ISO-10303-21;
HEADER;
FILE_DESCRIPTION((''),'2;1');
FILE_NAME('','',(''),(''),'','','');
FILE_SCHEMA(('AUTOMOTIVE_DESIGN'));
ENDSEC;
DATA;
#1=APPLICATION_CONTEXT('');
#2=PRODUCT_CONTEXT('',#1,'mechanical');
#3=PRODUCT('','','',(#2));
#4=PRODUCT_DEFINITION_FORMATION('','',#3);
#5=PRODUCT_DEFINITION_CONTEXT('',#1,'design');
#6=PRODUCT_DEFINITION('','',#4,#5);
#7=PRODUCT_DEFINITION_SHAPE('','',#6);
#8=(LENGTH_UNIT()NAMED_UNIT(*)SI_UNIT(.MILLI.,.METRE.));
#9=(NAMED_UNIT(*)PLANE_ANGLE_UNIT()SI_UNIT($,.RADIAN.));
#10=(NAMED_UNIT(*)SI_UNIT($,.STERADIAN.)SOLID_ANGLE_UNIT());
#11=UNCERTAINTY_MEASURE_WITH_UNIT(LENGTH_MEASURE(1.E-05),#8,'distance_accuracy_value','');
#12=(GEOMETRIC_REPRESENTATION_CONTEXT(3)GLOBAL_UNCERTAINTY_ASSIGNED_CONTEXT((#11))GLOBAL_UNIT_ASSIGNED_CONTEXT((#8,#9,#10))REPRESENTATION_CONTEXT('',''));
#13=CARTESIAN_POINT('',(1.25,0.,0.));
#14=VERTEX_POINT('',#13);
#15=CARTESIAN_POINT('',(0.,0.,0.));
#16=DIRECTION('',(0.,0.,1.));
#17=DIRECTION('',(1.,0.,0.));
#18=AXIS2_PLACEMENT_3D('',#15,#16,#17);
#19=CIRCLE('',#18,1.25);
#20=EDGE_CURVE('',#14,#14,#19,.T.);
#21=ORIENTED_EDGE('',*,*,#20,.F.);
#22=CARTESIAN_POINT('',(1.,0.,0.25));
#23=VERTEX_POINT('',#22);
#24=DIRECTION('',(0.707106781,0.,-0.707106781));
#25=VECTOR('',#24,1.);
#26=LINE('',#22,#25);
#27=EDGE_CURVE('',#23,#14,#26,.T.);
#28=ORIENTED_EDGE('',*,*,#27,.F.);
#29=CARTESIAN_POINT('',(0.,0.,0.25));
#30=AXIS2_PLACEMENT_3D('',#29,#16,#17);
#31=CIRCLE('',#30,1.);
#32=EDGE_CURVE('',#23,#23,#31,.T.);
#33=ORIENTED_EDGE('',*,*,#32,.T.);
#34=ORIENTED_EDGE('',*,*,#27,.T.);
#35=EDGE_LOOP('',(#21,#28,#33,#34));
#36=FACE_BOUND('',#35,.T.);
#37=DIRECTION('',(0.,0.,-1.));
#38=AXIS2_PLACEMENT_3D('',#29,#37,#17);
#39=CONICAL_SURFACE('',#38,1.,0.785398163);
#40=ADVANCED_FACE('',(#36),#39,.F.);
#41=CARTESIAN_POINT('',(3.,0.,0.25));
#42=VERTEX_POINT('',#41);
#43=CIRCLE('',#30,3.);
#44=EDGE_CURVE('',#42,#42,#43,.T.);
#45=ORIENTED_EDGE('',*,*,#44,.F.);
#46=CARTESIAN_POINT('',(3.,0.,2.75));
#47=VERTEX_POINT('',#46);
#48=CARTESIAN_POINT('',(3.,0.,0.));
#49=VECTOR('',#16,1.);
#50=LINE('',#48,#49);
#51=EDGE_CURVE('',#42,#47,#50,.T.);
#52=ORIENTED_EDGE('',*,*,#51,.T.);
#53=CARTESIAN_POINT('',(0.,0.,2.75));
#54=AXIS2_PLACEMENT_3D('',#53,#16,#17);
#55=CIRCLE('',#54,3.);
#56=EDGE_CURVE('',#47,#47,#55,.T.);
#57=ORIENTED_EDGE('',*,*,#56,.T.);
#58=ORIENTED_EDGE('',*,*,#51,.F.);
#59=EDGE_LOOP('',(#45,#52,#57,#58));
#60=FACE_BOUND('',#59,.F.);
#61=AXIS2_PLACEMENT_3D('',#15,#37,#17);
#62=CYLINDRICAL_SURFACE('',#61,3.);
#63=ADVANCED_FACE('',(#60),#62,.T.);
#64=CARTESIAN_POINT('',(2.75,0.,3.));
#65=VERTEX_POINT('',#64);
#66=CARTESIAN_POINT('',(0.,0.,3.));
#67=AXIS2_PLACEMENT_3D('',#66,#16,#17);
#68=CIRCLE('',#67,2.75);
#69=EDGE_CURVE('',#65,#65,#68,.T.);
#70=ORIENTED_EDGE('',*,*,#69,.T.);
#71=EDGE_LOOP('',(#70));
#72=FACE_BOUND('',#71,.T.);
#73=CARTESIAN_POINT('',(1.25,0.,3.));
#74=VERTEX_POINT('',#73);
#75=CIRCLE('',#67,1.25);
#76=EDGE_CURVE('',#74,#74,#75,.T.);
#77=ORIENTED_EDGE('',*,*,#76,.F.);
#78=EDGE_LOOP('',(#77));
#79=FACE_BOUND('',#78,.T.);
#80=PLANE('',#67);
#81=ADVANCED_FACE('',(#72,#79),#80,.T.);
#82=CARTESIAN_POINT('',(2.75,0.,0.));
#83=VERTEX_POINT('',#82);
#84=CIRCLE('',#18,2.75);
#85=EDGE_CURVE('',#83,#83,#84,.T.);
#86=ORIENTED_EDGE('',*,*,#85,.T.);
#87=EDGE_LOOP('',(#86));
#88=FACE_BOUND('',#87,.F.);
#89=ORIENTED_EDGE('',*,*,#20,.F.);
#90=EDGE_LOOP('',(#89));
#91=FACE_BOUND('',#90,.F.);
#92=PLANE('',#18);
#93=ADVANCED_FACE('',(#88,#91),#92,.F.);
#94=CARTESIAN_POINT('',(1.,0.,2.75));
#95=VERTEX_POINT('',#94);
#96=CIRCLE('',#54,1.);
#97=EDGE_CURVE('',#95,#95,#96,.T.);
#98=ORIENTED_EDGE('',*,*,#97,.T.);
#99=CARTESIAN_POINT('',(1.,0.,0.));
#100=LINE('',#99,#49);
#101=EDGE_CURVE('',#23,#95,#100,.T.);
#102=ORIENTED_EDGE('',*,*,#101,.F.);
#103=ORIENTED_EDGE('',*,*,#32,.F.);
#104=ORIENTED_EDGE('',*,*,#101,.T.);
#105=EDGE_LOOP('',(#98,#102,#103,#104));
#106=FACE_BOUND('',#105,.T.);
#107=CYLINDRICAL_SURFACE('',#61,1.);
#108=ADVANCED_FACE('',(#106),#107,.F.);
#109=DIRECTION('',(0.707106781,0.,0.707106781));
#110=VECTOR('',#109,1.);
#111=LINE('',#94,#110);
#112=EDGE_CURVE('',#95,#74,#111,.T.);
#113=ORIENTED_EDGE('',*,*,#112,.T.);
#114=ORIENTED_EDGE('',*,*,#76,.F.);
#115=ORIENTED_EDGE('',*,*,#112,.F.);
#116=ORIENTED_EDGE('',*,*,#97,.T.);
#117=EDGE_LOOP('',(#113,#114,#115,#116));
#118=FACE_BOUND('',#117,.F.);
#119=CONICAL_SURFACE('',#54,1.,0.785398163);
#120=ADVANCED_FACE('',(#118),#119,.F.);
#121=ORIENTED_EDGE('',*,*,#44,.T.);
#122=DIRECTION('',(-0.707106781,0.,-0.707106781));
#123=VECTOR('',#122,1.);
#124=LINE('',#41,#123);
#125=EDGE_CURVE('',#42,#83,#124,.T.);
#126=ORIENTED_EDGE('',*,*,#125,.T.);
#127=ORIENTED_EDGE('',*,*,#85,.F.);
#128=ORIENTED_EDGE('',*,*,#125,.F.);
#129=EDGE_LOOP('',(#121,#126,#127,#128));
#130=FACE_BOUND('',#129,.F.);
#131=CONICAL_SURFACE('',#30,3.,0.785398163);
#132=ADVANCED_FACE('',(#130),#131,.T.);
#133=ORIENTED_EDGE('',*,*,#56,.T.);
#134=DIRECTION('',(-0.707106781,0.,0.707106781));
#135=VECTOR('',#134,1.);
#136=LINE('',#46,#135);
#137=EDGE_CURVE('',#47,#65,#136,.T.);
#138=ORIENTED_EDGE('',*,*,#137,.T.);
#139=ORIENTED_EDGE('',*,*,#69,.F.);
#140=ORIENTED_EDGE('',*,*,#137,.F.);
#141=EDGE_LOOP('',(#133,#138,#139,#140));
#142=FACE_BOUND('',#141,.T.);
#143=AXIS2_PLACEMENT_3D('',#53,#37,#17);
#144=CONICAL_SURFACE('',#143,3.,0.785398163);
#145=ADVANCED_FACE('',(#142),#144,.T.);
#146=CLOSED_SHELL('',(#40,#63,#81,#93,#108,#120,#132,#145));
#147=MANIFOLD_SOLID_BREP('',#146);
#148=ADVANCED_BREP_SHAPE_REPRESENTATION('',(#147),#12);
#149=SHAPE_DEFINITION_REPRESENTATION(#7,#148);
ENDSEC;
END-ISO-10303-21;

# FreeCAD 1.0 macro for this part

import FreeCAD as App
import Part
import Sketcher
from FreeCAD import Vector
Q = App.Units.Quantity


def edges_at(feature, points):
    """Names of the edges that pass closest to the given points."""
    edges = feature.Shape.Edges
    near = lambda p: min(range(len(edges)), key=lambda i: edges[i].distToShape(Part.Vertex(*p))[0])
    return sorted({f"Edge{near(p) + 1}" for p in points})

doc = App.newDocument("Part")
body = doc.addObject("PartDesign::Body", "Body")

# Sketch on XY plane
sketch1 = body.newObject("Sketcher::SketchObject", "Sketch")
sketch1.AttachmentSupport = (doc.getObject("XY_Plane"), [""])
sketch1.MapMode = "FlatFace"
sketch1.addGeometry([
    Part.Circle(Vector(0, 0, 0), Vector(0, 0, 1), 3),
    Part.Circle(Vector(0, 0, 0), Vector(0, 0, 1), 1),
], False)
sketch1.addConstraint([
    Sketcher.Constraint("Coincident", 0, 3, -1, 1),
    Sketcher.Constraint("Coincident", 1, 3, -1, 1),
    Sketcher.Constraint("Diameter", 0, Q("6 mm")),
    Sketcher.Constraint("Diameter", 1, Q("2 mm")),
])
pad1 = body.newObject("PartDesign::Pad", "Pad")
pad1.Profile = sketch1
pad1.Length = 3
doc.recompute()

chamfer = body.newObject("PartDesign::Chamfer", "Chamfer")
chamfer.Base = (pad1, edges_at(pad1, [
    (-3, 0, 0),
    (-1, 0, 0),
    (-3, 0, 3),
    (-1, 0, 3),
]))
chamfer.Size = 0.25

doc.recompute()
